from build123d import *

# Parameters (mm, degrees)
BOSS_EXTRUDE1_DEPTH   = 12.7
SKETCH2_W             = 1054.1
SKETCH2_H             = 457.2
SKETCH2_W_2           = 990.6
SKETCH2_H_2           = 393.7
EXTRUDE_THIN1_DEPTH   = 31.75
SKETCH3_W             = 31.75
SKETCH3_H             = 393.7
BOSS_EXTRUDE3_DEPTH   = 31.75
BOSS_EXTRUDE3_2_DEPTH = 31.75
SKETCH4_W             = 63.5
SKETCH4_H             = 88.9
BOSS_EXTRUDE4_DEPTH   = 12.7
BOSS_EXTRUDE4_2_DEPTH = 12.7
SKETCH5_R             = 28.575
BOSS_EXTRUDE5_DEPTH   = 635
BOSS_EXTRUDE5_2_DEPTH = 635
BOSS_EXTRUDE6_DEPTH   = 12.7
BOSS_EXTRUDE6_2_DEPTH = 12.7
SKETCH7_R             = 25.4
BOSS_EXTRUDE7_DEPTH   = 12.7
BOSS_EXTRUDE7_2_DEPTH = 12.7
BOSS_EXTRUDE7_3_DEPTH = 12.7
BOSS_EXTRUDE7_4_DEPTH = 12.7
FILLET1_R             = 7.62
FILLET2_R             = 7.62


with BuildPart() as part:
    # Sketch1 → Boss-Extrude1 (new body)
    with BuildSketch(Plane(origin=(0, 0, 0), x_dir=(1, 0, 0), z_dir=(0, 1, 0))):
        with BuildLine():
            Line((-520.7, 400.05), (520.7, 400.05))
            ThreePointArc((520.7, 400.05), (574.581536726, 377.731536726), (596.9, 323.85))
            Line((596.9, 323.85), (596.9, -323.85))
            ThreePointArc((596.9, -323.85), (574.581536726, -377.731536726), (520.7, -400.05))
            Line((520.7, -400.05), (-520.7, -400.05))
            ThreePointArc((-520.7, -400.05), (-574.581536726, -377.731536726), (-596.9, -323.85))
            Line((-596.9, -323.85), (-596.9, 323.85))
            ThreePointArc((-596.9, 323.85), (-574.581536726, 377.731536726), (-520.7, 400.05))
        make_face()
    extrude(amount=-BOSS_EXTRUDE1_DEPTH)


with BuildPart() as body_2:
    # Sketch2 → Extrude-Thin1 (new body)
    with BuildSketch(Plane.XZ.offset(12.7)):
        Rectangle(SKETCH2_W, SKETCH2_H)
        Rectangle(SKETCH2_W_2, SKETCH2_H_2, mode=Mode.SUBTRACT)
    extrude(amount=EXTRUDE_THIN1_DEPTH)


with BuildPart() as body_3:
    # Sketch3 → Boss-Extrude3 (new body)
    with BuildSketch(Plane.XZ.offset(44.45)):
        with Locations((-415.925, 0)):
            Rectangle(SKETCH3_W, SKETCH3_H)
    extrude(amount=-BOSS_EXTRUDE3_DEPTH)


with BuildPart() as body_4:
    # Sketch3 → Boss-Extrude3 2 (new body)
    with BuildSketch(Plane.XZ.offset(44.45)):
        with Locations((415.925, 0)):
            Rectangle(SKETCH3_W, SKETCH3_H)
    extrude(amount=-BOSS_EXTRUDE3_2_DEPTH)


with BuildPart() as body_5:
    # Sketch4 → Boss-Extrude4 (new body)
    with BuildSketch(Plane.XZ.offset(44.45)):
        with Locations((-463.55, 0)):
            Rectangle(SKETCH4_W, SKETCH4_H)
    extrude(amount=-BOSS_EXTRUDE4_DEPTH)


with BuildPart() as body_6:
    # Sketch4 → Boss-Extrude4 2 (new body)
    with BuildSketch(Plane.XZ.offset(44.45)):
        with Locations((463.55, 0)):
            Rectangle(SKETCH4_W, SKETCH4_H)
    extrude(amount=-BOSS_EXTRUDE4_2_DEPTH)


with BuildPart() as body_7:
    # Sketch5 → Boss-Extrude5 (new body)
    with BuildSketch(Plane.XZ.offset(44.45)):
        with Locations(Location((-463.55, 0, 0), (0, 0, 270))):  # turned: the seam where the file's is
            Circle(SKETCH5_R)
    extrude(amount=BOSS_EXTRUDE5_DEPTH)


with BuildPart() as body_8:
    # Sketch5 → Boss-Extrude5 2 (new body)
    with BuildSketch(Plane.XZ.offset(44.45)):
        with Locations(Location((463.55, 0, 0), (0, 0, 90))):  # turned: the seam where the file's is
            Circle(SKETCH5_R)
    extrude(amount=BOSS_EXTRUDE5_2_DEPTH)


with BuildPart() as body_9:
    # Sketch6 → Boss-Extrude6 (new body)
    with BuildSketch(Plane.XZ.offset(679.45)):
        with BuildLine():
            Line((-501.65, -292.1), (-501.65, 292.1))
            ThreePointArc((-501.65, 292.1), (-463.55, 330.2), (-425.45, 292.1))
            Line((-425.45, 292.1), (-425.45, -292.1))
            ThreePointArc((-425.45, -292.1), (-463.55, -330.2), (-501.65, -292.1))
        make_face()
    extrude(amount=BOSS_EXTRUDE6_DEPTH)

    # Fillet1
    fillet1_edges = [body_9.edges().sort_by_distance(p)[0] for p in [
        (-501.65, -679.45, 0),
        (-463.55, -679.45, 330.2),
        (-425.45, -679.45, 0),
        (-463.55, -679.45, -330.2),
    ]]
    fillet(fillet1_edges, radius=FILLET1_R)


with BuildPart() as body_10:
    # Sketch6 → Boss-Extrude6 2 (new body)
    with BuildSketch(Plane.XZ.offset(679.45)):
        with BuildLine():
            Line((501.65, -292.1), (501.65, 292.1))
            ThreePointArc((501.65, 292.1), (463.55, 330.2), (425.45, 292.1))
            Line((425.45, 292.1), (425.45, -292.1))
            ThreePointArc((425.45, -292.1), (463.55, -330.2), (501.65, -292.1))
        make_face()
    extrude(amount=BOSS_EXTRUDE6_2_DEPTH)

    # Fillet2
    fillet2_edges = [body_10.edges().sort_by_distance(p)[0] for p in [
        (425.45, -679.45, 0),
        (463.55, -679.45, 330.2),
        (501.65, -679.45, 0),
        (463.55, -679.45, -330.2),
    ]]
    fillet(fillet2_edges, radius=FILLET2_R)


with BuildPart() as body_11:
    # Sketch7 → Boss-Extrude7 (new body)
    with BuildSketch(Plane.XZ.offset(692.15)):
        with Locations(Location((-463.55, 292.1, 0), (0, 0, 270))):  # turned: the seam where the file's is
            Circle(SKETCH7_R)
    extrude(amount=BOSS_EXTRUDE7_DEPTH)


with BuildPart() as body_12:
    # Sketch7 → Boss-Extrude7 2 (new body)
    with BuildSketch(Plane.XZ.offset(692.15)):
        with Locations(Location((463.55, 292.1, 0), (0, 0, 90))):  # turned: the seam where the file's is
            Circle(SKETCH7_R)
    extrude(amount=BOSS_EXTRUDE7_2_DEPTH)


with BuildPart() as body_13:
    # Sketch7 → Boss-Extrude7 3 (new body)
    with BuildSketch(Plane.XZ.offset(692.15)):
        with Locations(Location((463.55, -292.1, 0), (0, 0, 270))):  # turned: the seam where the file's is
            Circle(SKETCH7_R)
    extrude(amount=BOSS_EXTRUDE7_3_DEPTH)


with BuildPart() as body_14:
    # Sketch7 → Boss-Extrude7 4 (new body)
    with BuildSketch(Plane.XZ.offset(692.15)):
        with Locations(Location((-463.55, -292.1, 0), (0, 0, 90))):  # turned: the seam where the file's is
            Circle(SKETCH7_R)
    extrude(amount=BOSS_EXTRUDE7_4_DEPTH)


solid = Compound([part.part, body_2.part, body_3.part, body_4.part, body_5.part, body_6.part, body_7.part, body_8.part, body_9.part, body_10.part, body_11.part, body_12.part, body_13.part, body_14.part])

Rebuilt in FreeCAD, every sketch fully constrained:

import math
import FreeCAD as App
import Part
import Sketcher

V = App.Vector
Q = App.Units.Quantity


def edges_at(feature, points):
    """Names of the edges that pass closest to the given points."""
    edges = feature.Shape.Edges
    near = lambda p: min(range(len(edges)), key=lambda i: edges[i].distToShape(Part.Vertex(*p))[0])
    return sorted({f"Edge{near(p) + 1}" for p in points})


def add_polygon(sketch, points):
    """Adds a closed chain of lines whose ends are joined by coincident constraints."""
    first, n = sketch.GeometryCount, len(points)
    for a, b in zip(points, points[1:] + points[:1]):
        sketch.addGeometry(Part.LineSegment(App.Vector(*a, 0), App.Vector(*b, 0)), False)
    for i in range(n):
        sketch.addConstraint(Sketcher.Constraint("Coincident", first + i, 2, first + (i + 1) % n, 1))

doc = App.newDocument("Part")
body = doc.addObject("PartDesign::Body", "Body")

sketch1 = doc.addObject("Sketcher::SketchObject", "Sketch")
body.addObject(sketch1)
sketch1.AttachmentSupport = (doc.XZ_Plane, [""])
sketch1.MapMode = "FlatFace"
sketch1.addGeometry([
    Part.LineSegment(V(521, -400, 0), V(-521, -400, 0)),
    Part.ArcOfCircle(Part.Circle(V(-521, -324, 0), V(0, 0, 1), 76), math.radians(-180), math.radians(-90)),
    Part.LineSegment(V(-597, -324, 0), V(-597, 324, 0)),
    Part.ArcOfCircle(Part.Circle(V(-521, 324, 0), V(0, 0, 1), 76), math.radians(90), math.radians(180)),
    Part.LineSegment(V(-521, 400, 0), V(521, 400, 0)),
    Part.ArcOfCircle(Part.Circle(V(521, 324, 0), V(0, 0, 1), 76), math.radians(0), math.radians(90)),
    Part.LineSegment(V(597, 324, 0), V(597, -324, 0)),
    Part.ArcOfCircle(Part.Circle(V(521, -324, 0), V(0, 0, 1), 76), math.radians(-90), math.radians(0)),
], False)
sketch1.addConstraint([
    Sketcher.Constraint("Tangent", 0, 2, 1, 2),
    Sketcher.Constraint("Tangent", 1, 1, 2, 1),
    Sketcher.Constraint("Tangent", 2, 2, 3, 2),
    Sketcher.Constraint("Tangent", 3, 1, 4, 1),
    Sketcher.Constraint("Tangent", 4, 2, 5, 2),
    Sketcher.Constraint("Tangent", 5, 1, 6, 1),
    Sketcher.Constraint("Tangent", 6, 2, 7, 2),
    Sketcher.Constraint("Tangent", 7, 1, 0, 1),
    Sketcher.Constraint("Horizontal", 0),
    Sketcher.Constraint("Vertical", 2),
    Sketcher.Constraint("Horizontal", 4),
    Sketcher.Constraint("Vertical", 6),
    Sketcher.Constraint("Equal", 1, 3),
    Sketcher.Constraint("Equal", 3, 5),
    Sketcher.Constraint("Equal", 5, 7),
    Sketcher.Constraint("Symmetric", 1, 3, 5, 3, -1, 1),
    Sketcher.Constraint("Radius", 1, Q("3 in")),
    Sketcher.Constraint("DistanceX", 0, 2, 0, 1, Q("41 in")),
    Sketcher.Constraint("DistanceY", 2, 1, 2, 2, Q("25.5 in")),
])
pad1 = doc.addObject("PartDesign::Pad", "Pad")
body.addObject(pad1)
pad1.Profile = sketch1
pad1.Length = Q("0.5 in")
body2 = doc.addObject("PartDesign::Body", "Body001")

sketch2 = doc.addObject("Sketcher::SketchObject", "Sketch001")
body2.addObject(sketch2)
sketch2.AttachmentSupport = (doc.getObject("XZ_Plane001"), [""])
sketch2.MapMode = "FlatFace"
sketch2.AttachmentOffset = App.Placement(V(0, 0, 0.5 * 25.4), App.Rotation())
add_polygon(sketch2, [(-527, 229), (-527, -229), (527, -229), (527, 229)])
add_polygon(sketch2, [(495, -197), (-495, -197), (-495, 197), (495, 197)])
sketch2.addConstraint([
    Sketcher.Constraint("Vertical", 0),
    Sketcher.Constraint("Horizontal", 1),
    Sketcher.Constraint("Vertical", 2),
    Sketcher.Constraint("Horizontal", 3),
    Sketcher.Constraint("Horizontal", 4),
    Sketcher.Constraint("Vertical", 5),
    Sketcher.Constraint("Horizontal", 6),
    Sketcher.Constraint("Vertical", 7),
    Sketcher.Constraint("Symmetric", 0, 2, 2, 2, -1, 1),
    Sketcher.Constraint("Symmetric", 4, 2, 6, 2, -1, 1),
    Sketcher.Constraint("DistanceX", 4, 2, 4, 1, Q("39 in")),
    Sketcher.Constraint("DistanceY", 0, 2, 0, 1, Q("18 in")),
    Sketcher.Constraint("DistanceX", 1, 1, 1, 2, Q("41.5 in")),
    Sketcher.Constraint("DistanceY", 5, 1, 5, 2, Q("15.5 in")),
])
pad2 = doc.addObject("PartDesign::Pad", "Pad001")
body2.addObject(pad2)
pad2.Profile = sketch2
pad2.Length = Q("1.25 in")
body3 = doc.addObject("PartDesign::Body", "Body002")

sketch3 = doc.addObject("Sketcher::SketchObject", "Sketch002")
body3.addObject(sketch3)
sketch3.AttachmentSupport = (doc.getObject("XZ_Plane002"), [""])
sketch3.MapMode = "FlatFace"
sketch3.AttachmentOffset = App.Placement(V(0, 0, 1.75 * 25.4), App.Rotation())
add_polygon(sketch3, [(-432, 197), (-432, -197), (-400, -197), (-400, 197)])
sketch3.addConstraint([
    Sketcher.Constraint("Vertical", 0),
    Sketcher.Constraint("Horizontal", 1),
    Sketcher.Constraint("Vertical", 2),
    Sketcher.Constraint("Horizontal", 3),
    Sketcher.Constraint("DistanceY", 0, 2, 0, 1, Q("15.5 in")),
    Sketcher.Constraint("DistanceX", 0, 2, -1, 1, Q("17 in")),
    Sketcher.Constraint("DistanceX", 1, 1, 1, 2, Q("1.25 in")),
    Sketcher.Constraint("DistanceY", 0, 2, -1, 1, Q("7.75 in")),
])
pad3 = doc.addObject("PartDesign::Pad", "Pad002")
body3.addObject(pad3)
pad3.Profile = sketch3
pad3.Length = Q("1.25 in")
pad3.Reversed = True
body4 = doc.addObject("PartDesign::Body", "Body003")

sketch4 = doc.addObject("Sketcher::SketchObject", "Sketch003")
body4.addObject(sketch4)
sketch4.AttachmentSupport = (doc.getObject("XZ_Plane003"), [""])
sketch4.MapMode = "FlatFace"
sketch4.AttachmentOffset = App.Placement(V(0, 0, 1.75 * 25.4), App.Rotation())
add_polygon(sketch4, [(400, 197), (400, -197), (432, -197), (432, 197)])
sketch4.addConstraint([
    Sketcher.Constraint("Vertical", 0),
    Sketcher.Constraint("Horizontal", 1),
    Sketcher.Constraint("Vertical", 2),
    Sketcher.Constraint("Horizontal", 3),
    Sketcher.Constraint("DistanceY", 0, 2, 0, 1, Q("15.5 in")),
    Sketcher.Constraint("DistanceX", -1, 1, 1, 2, Q("17 in")),
    Sketcher.Constraint("DistanceX", 1, 1, 1, 2, Q("1.25 in")),
    Sketcher.Constraint("DistanceY", 0, 2, -1, 1, Q("7.75 in")),
])
pad4 = doc.addObject("PartDesign::Pad", "Pad003")
body4.addObject(pad4)
pad4.Profile = sketch4
pad4.Length = Q("1.25 in")
pad4.Reversed = True
body5 = doc.addObject("PartDesign::Body", "Body004")

sketch5 = doc.addObject("Sketcher::SketchObject", "Sketch004")
body5.addObject(sketch5)
sketch5.AttachmentSupport = (doc.getObject("XZ_Plane004"), [""])
sketch5.MapMode = "FlatFace"
sketch5.AttachmentOffset = App.Placement(V(0, 0, 1.75 * 25.4), App.Rotation())
add_polygon(sketch5, [(-495, 44), (-495, -44), (-432, -44), (-432, 44)])
sketch5.addConstraint([
    Sketcher.Constraint("Vertical", 0),
    Sketcher.Constraint("Horizontal", 1),
    Sketcher.Constraint("Vertical", 2),
    Sketcher.Constraint("Horizontal", 3),
    Sketcher.Constraint("DistanceX", 1, 1, 1, 2, Q("2.5 in")),
    Sketcher.Constraint("DistanceY", 0, 2, 0, 1, Q("3.5 in")),
    Sketcher.Constraint("DistanceX", 1, 2, -1, 1, Q("17 in")),
    Sketcher.Constraint("DistanceY", 0, 2, -1, 1, Q("1.75 in")),
])
pad5 = doc.addObject("PartDesign::Pad", "Pad004")
body5.addObject(pad5)
pad5.Profile = sketch5
pad5.Length = Q("0.5 in")
pad5.Reversed = True
body6 = doc.addObject("PartDesign::Body", "Body005")

sketch6 = doc.addObject("Sketcher::SketchObject", "Sketch005")
body6.addObject(sketch6)
sketch6.AttachmentSupport = (doc.getObject("XZ_Plane005"), [""])
sketch6.MapMode = "FlatFace"
sketch6.AttachmentOffset = App.Placement(V(0, 0, 1.75 * 25.4), App.Rotation())
add_polygon(sketch6, [(432, 44), (432, -44), (495, -44), (495, 44)])
sketch6.addConstraint([
    Sketcher.Constraint("Vertical", 0),
    Sketcher.Constraint("Horizontal", 1),
    Sketcher.Constraint("Vertical", 2),
    Sketcher.Constraint("Horizontal", 3),
    Sketcher.Constraint("DistanceX", 1, 1, 1, 2, Q("2.5 in")),
    Sketcher.Constraint("DistanceY", 0, 2, 0, 1, Q("3.5 in")),
    Sketcher.Constraint("DistanceX", -1, 1, 0, 2, Q("17 in")),
    Sketcher.Constraint("DistanceY", 0, 2, -1, 1, Q("1.75 in")),
])
pad6 = doc.addObject("PartDesign::Pad", "Pad005")
body6.addObject(pad6)
pad6.Profile = sketch6
pad6.Length = Q("0.5 in")
pad6.Reversed = True
body7 = doc.addObject("PartDesign::Body", "Body006")

sketch7 = doc.addObject("Sketcher::SketchObject", "Sketch006")
body7.addObject(sketch7)
sketch7.AttachmentSupport = (doc.getObject("XZ_Plane006"), [""])
sketch7.MapMode = "FlatFace"
sketch7.AttachmentOffset = App.Placement(V(0, 0, 1.75 * 25.4), App.Rotation())
sketch7.addGeometry(Part.Circle(V(-464, 0, 0), V(0, 0, 1), 29), False)
sketch7.addConstraint([
    Sketcher.Constraint("PointOnObject", 0, 3, -1),
    Sketcher.Constraint("Diameter", 0, Q("2.25 in")),
    Sketcher.Constraint("DistanceX", 0, 3, -1, 1, Q("18.25 in")),
])
pad7 = doc.addObject("PartDesign::Pad", "Pad006")
body7.addObject(pad7)
pad7.Profile = sketch7
pad7.Length = Q("25 in")
body8 = doc.addObject("PartDesign::Body", "Body007")

sketch8 = doc.addObject("Sketcher::SketchObject", "Sketch007")
body8.addObject(sketch8)
sketch8.AttachmentSupport = (doc.getObject("XZ_Plane007"), [""])
sketch8.MapMode = "FlatFace"
sketch8.AttachmentOffset = App.Placement(V(0, 0, 1.75 * 25.4), App.Rotation())
sketch8.addGeometry(Part.Circle(V(464, 0, 0), V(0, 0, 1), 29), False)
sketch8.addConstraint([
    Sketcher.Constraint("PointOnObject", 0, 3, -1),
    Sketcher.Constraint("Diameter", 0, Q("2.25 in")),
    Sketcher.Constraint("DistanceX", -1, 1, 0, 3, Q("18.25 in")),
])
pad8 = doc.addObject("PartDesign::Pad", "Pad007")
body8.addObject(pad8)
pad8.Profile = sketch8
pad8.Length = Q("25 in")
body9 = doc.addObject("PartDesign::Body", "Body008")

sketch9 = doc.addObject("Sketcher::SketchObject", "Sketch008")
body9.addObject(sketch9)
sketch9.AttachmentSupport = (doc.getObject("XZ_Plane008"), [""])
sketch9.MapMode = "FlatFace"
sketch9.AttachmentOffset = App.Placement(V(0, 0, 26.75 * 25.4), App.Rotation())
sketch9.addGeometry([
    Part.LineSegment(V(-502, 292, 0), V(-502, -292, 0)),
    Part.ArcOfCircle(Part.Circle(V(-464, -292, 0), V(0, 0, 1), 38), math.radians(180), math.radians(360)),
    Part.LineSegment(V(-425, -292, 0), V(-425, 292, 0)),
    Part.ArcOfCircle(Part.Circle(V(-464, 292, 0), V(0, 0, 1), 38), math.radians(0), math.radians(180)),
], False)
sketch9.addConstraint([
    Sketcher.Constraint("Tangent", 0, 2, 1, 1),
    Sketcher.Constraint("Tangent", 1, 2, 2, 1),
    Sketcher.Constraint("Tangent", 2, 2, 3, 1),
    Sketcher.Constraint("Tangent", 3, 2, 0, 1),
    Sketcher.Constraint("Vertical", 0),
    Sketcher.Constraint("Vertical", 2),
    Sketcher.Constraint("Radius", 1, Q("1.5 in")),
    Sketcher.Constraint("DistanceY", 0, 2, 0, 1, Q("23 in")),
    Sketcher.Constraint("DistanceY", 1, 3, -1, 1, Q("11.5 in")),
    Sketcher.Constraint("DistanceX", 1, 3, -1, 1, Q("18.25 in")),
])
pad9 = doc.addObject("PartDesign::Pad", "Pad008")
body9.addObject(pad9)
pad9.Profile = sketch9
pad9.Length = Q("0.5 in")
doc.recompute()

fillet = doc.addObject("PartDesign::Fillet", "Fillet")
body9.addObject(fillet)
fillet.Base = (pad9, edges_at(pad9, [
    (-501.65, -679.45, 0),
    (-463.55, -679.45, 330.2),
    (-425.45, -679.45, 0),
    (-463.55, -679.45, -330.2),
]))
fillet.Radius = Q("0.3 in")
body10 = doc.addObject("PartDesign::Body", "Body009")

sketch10 = doc.addObject("Sketcher::SketchObject", "Sketch009")
body10.addObject(sketch10)
sketch10.AttachmentSupport = (doc.getObject("XZ_Plane009"), [""])
sketch10.MapMode = "FlatFace"
sketch10.AttachmentOffset = App.Placement(V(0, 0, 26.75 * 25.4), App.Rotation())
sketch10.addGeometry([
    Part.LineSegment(V(502, -292, 0), V(502, 292, 0)),
    Part.ArcOfCircle(Part.Circle(V(464, 292, 0), V(0, 0, 1), 38), math.radians(0), math.radians(180)),
    Part.LineSegment(V(425, 292, 0), V(425, -292, 0)),
    Part.ArcOfCircle(Part.Circle(V(464, -292, 0), V(0, 0, 1), 38), math.radians(180), math.radians(360)),
], False)
sketch10.addConstraint([
    Sketcher.Constraint("Tangent", 0, 2, 1, 1),
    Sketcher.Constraint("Tangent", 1, 2, 2, 1),
    Sketcher.Constraint("Tangent", 2, 2, 3, 1),
    Sketcher.Constraint("Tangent", 3, 2, 0, 1),
    Sketcher.Constraint("Vertical", 0),
    Sketcher.Constraint("Vertical", 2),
    Sketcher.Constraint("Radius", 1, Q("1.5 in")),
    Sketcher.Constraint("DistanceY", 0, 1, 0, 2, Q("23 in")),
    Sketcher.Constraint("DistanceY", -1, 1, 1, 3, Q("11.5 in")),
    Sketcher.Constraint("DistanceX", -1, 1, 1, 3, Q("18.25 in")),
])
pad10 = doc.addObject("PartDesign::Pad", "Pad009")
body10.addObject(pad10)
pad10.Profile = sketch10
pad10.Length = Q("0.5 in")
doc.recompute()

fillet2 = doc.addObject("PartDesign::Fillet", "Fillet001")
body10.addObject(fillet2)
fillet2.Base = (pad10, edges_at(pad10, [
    (425.45, -679.45, 0),
    (463.55, -679.45, 330.2),
    (501.65, -679.45, 0),
    (463.55, -679.45, -330.2),
]))
fillet2.Radius = Q("0.3 in")
body11 = doc.addObject("PartDesign::Body", "Body010")

sketch11 = doc.addObject("Sketcher::SketchObject", "Sketch010")
body11.addObject(sketch11)
sketch11.AttachmentSupport = (doc.getObject("XZ_Plane010"), [""])
sketch11.MapMode = "FlatFace"
sketch11.AttachmentOffset = App.Placement(V(0, 0, 27.25 * 25.4), App.Rotation())
sketch11.addGeometry(Part.Circle(V(-464, 292, 0), V(0, 0, 1), 25), False)
sketch11.addConstraint([
    Sketcher.Constraint("Diameter", 0, Q("2 in")),
    Sketcher.Constraint("DistanceY", -1, 1, 0, 3, Q("11.5 in")),
    Sketcher.Constraint("DistanceX", 0, 3, -1, 1, Q("18.25 in")),
])
pad11 = doc.addObject("PartDesign::Pad", "Pad010")
body11.addObject(pad11)
pad11.Profile = sketch11
pad11.Length = Q("0.5 in")
body12 = doc.addObject("PartDesign::Body", "Body011")

sketch12 = doc.addObject("Sketcher::SketchObject", "Sketch011")
body12.addObject(sketch12)
sketch12.AttachmentSupport = (doc.getObject("XZ_Plane011"), [""])
sketch12.MapMode = "FlatFace"
sketch12.AttachmentOffset = App.Placement(V(0, 0, 27.25 * 25.4), App.Rotation())
sketch12.addGeometry(Part.Circle(V(464, 292, 0), V(0, 0, 1), 25), False)
sketch12.addConstraint([
    Sketcher.Constraint("Diameter", 0, Q("2 in")),
    Sketcher.Constraint("DistanceY", -1, 1, 0, 3, Q("11.5 in")),
    Sketcher.Constraint("DistanceX", -1, 1, 0, 3, Q("18.25 in")),
])
pad12 = doc.addObject("PartDesign::Pad", "Pad011")
body12.addObject(pad12)
pad12.Profile = sketch12
pad12.Length = Q("0.5 in")
body13 = doc.addObject("PartDesign::Body", "Body012")

sketch13 = doc.addObject("Sketcher::SketchObject", "Sketch012")
body13.addObject(sketch13)
sketch13.AttachmentSupport = (doc.getObject("XZ_Plane012"), [""])
sketch13.MapMode = "FlatFace"
sketch13.AttachmentOffset = App.Placement(V(0, 0, 27.25 * 25.4), App.Rotation())
sketch13.addGeometry(Part.Circle(V(464, -292, 0), V(0, 0, 1), 25), False)
sketch13.addConstraint([
    Sketcher.Constraint("Diameter", 0, Q("2 in")),
    Sketcher.Constraint("DistanceY", 0, 3, -1, 1, Q("11.5 in")),
    Sketcher.Constraint("DistanceX", -1, 1, 0, 3, Q("18.25 in")),
])
pad13 = doc.addObject("PartDesign::Pad", "Pad012")
body13.addObject(pad13)
pad13.Profile = sketch13
pad13.Length = Q("0.5 in")
body14 = doc.addObject("PartDesign::Body", "Body013")

sketch14 = doc.addObject("Sketcher::SketchObject", "Sketch013")
body14.addObject(sketch14)
sketch14.AttachmentSupport = (doc.getObject("XZ_Plane013"), [""])
sketch14.MapMode = "FlatFace"
sketch14.AttachmentOffset = App.Placement(V(0, 0, 27.25 * 25.4), App.Rotation())
sketch14.addGeometry(Part.Circle(V(-464, -292, 0), V(0, 0, 1), 25), False)
sketch14.addConstraint([
    Sketcher.Constraint("Diameter", 0, Q("2 in")),
    Sketcher.Constraint("DistanceY", 0, 3, -1, 1, Q("11.5 in")),
    Sketcher.Constraint("DistanceX", 0, 3, -1, 1, Q("18.25 in")),
])
pad14 = doc.addObject("PartDesign::Pad", "Pad013")
body14.addObject(pad14)
pad14.Profile = sketch14
pad14.Length = Q("0.5 in")

doc.recompute()
